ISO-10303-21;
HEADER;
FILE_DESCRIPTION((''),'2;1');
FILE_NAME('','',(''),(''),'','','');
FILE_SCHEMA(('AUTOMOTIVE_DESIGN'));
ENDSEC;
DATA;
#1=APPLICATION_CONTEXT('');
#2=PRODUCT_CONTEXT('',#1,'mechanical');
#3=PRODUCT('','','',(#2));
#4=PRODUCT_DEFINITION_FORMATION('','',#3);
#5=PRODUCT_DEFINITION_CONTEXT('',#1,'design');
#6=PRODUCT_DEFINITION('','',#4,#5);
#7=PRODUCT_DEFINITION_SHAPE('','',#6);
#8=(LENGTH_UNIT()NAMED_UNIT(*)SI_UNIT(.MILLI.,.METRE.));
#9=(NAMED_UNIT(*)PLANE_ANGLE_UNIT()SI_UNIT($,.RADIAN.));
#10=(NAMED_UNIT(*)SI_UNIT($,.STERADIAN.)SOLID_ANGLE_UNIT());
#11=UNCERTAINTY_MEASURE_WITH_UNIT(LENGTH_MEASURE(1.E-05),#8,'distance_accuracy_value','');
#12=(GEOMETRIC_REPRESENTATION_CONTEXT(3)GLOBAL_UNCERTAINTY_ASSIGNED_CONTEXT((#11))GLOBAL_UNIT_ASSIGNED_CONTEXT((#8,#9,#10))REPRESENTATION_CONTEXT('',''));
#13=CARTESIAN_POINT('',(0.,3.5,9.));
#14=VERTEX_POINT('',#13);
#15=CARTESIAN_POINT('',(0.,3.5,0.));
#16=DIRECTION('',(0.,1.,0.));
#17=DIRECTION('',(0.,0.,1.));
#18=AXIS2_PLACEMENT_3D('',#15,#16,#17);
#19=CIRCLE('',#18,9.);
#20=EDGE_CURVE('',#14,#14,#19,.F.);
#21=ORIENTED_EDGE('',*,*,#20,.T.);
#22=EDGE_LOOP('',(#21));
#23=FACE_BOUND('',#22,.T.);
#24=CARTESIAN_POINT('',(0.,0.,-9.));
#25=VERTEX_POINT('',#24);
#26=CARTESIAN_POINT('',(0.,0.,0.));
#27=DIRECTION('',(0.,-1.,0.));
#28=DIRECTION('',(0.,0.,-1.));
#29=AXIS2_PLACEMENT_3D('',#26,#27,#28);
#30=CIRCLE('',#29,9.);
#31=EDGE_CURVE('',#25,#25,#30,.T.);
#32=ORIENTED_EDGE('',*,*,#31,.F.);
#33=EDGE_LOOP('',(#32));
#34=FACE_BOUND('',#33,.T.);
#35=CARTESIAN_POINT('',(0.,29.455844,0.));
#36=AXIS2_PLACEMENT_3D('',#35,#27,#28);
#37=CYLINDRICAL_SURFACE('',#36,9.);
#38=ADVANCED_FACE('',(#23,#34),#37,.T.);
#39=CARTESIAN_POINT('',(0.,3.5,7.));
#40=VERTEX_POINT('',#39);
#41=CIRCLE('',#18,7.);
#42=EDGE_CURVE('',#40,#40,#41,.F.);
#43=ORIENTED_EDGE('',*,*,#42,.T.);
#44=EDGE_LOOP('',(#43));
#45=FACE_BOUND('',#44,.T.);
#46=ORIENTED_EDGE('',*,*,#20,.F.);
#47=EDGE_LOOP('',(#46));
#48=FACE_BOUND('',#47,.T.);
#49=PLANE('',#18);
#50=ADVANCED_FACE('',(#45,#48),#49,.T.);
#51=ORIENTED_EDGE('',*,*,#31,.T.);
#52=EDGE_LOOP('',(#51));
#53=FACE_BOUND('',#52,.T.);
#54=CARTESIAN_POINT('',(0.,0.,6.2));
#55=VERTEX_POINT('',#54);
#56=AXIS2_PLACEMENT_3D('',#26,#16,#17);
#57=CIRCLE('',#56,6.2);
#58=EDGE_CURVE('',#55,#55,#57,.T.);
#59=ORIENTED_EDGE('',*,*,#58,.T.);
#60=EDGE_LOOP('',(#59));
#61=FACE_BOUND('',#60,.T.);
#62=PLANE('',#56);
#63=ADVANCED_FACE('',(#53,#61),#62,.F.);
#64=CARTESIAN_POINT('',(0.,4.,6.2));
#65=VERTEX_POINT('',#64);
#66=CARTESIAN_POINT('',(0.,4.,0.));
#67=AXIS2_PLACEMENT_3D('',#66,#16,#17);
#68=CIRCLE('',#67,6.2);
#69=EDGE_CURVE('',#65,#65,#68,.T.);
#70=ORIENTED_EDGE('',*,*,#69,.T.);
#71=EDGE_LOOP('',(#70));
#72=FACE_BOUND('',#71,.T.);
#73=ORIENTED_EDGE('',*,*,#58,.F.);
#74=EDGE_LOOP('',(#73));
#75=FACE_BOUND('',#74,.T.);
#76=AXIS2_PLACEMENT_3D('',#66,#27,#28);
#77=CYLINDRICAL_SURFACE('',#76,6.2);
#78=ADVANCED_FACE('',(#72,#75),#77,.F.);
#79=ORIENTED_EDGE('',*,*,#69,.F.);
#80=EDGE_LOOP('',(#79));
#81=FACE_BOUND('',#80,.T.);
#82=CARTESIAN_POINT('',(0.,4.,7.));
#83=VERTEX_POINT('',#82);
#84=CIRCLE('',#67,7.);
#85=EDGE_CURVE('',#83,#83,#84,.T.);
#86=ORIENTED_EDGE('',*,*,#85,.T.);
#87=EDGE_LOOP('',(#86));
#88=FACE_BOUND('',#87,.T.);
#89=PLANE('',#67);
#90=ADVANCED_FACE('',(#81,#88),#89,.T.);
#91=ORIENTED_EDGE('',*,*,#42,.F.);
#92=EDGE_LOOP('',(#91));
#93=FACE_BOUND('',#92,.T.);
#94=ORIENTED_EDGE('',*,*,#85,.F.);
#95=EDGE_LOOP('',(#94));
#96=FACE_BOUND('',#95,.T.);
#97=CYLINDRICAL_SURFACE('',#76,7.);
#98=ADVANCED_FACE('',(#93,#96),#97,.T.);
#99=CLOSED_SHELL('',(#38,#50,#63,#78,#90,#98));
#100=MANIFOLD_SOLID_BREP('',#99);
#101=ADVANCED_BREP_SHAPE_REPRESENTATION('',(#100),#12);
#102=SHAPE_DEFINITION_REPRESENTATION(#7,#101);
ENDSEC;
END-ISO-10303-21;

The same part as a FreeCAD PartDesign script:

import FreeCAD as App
import Part
import Sketcher
from FreeCAD import Vector

doc = App.newDocument("Part")
body = doc.addObject("PartDesign::Body", "Body")

sketch1 = doc.addObject("Sketcher::SketchObject", "Sketch")
body.addObject(sketch1)
sketch1.AttachmentSupport = (doc.XZ_Plane, [""])
sketch1.MapMode = "FlatFace"
sketch1.addGeometry(Part.Circle(Vector(0, 0, 0), Vector(0, 0, 1), 7), False)
sketch1.addGeometry(Part.Circle(Vector(0, 0, 0), Vector(0, 0, 1), 6), False)
sketch1.addConstraint(Sketcher.Constraint("Coincident", 0, 3, -1, 1))
sketch1.addConstraint(Sketcher.Constraint("Coincident", 1, 3, -1, 1))
sketch1.addConstraint(Sketcher.Constraint("Diameter", 0, 14.0))
sketch1.addConstraint(Sketcher.Constraint("Diameter", 1, 12.4))
pad1 = doc.addObject("PartDesign::Pad", "Pad")
body.addObject(pad1)
pad1.Profile = sketch1
pad1.Length = 4
pad1.Reversed = True

sketch2 = doc.addObject("Sketcher::SketchObject", "Sketch001")
body.addObject(sketch2)
sketch2.AttachmentSupport = (doc.XZ_Plane, [""])
sketch2.MapMode = "FlatFace"
sketch2.addGeometry(Part.Circle(Vector(0, 0, 0), Vector(0, 0, 1), 9), False)
sketch2.addGeometry(Part.Circle(Vector(0, 0, 0), Vector(0, 0, 1), 7), False)
sketch2.addConstraint(Sketcher.Constraint("Coincident", 0, 3, -1, 1))
sketch2.addConstraint(Sketcher.Constraint("Coincident", 1, 3, -1, 1))
sketch2.addConstraint(Sketcher.Constraint("Diameter", 0, 18.0))
sketch2.addConstraint(Sketcher.Constraint("Diameter", 1, 14.0))
pad2 = doc.addObject("PartDesign::Pad", "Pad001")
body.addObject(pad2)
pad2.Profile = sketch2
pad2.Length = 3.5
pad2.Reversed = True

doc.recompute()
